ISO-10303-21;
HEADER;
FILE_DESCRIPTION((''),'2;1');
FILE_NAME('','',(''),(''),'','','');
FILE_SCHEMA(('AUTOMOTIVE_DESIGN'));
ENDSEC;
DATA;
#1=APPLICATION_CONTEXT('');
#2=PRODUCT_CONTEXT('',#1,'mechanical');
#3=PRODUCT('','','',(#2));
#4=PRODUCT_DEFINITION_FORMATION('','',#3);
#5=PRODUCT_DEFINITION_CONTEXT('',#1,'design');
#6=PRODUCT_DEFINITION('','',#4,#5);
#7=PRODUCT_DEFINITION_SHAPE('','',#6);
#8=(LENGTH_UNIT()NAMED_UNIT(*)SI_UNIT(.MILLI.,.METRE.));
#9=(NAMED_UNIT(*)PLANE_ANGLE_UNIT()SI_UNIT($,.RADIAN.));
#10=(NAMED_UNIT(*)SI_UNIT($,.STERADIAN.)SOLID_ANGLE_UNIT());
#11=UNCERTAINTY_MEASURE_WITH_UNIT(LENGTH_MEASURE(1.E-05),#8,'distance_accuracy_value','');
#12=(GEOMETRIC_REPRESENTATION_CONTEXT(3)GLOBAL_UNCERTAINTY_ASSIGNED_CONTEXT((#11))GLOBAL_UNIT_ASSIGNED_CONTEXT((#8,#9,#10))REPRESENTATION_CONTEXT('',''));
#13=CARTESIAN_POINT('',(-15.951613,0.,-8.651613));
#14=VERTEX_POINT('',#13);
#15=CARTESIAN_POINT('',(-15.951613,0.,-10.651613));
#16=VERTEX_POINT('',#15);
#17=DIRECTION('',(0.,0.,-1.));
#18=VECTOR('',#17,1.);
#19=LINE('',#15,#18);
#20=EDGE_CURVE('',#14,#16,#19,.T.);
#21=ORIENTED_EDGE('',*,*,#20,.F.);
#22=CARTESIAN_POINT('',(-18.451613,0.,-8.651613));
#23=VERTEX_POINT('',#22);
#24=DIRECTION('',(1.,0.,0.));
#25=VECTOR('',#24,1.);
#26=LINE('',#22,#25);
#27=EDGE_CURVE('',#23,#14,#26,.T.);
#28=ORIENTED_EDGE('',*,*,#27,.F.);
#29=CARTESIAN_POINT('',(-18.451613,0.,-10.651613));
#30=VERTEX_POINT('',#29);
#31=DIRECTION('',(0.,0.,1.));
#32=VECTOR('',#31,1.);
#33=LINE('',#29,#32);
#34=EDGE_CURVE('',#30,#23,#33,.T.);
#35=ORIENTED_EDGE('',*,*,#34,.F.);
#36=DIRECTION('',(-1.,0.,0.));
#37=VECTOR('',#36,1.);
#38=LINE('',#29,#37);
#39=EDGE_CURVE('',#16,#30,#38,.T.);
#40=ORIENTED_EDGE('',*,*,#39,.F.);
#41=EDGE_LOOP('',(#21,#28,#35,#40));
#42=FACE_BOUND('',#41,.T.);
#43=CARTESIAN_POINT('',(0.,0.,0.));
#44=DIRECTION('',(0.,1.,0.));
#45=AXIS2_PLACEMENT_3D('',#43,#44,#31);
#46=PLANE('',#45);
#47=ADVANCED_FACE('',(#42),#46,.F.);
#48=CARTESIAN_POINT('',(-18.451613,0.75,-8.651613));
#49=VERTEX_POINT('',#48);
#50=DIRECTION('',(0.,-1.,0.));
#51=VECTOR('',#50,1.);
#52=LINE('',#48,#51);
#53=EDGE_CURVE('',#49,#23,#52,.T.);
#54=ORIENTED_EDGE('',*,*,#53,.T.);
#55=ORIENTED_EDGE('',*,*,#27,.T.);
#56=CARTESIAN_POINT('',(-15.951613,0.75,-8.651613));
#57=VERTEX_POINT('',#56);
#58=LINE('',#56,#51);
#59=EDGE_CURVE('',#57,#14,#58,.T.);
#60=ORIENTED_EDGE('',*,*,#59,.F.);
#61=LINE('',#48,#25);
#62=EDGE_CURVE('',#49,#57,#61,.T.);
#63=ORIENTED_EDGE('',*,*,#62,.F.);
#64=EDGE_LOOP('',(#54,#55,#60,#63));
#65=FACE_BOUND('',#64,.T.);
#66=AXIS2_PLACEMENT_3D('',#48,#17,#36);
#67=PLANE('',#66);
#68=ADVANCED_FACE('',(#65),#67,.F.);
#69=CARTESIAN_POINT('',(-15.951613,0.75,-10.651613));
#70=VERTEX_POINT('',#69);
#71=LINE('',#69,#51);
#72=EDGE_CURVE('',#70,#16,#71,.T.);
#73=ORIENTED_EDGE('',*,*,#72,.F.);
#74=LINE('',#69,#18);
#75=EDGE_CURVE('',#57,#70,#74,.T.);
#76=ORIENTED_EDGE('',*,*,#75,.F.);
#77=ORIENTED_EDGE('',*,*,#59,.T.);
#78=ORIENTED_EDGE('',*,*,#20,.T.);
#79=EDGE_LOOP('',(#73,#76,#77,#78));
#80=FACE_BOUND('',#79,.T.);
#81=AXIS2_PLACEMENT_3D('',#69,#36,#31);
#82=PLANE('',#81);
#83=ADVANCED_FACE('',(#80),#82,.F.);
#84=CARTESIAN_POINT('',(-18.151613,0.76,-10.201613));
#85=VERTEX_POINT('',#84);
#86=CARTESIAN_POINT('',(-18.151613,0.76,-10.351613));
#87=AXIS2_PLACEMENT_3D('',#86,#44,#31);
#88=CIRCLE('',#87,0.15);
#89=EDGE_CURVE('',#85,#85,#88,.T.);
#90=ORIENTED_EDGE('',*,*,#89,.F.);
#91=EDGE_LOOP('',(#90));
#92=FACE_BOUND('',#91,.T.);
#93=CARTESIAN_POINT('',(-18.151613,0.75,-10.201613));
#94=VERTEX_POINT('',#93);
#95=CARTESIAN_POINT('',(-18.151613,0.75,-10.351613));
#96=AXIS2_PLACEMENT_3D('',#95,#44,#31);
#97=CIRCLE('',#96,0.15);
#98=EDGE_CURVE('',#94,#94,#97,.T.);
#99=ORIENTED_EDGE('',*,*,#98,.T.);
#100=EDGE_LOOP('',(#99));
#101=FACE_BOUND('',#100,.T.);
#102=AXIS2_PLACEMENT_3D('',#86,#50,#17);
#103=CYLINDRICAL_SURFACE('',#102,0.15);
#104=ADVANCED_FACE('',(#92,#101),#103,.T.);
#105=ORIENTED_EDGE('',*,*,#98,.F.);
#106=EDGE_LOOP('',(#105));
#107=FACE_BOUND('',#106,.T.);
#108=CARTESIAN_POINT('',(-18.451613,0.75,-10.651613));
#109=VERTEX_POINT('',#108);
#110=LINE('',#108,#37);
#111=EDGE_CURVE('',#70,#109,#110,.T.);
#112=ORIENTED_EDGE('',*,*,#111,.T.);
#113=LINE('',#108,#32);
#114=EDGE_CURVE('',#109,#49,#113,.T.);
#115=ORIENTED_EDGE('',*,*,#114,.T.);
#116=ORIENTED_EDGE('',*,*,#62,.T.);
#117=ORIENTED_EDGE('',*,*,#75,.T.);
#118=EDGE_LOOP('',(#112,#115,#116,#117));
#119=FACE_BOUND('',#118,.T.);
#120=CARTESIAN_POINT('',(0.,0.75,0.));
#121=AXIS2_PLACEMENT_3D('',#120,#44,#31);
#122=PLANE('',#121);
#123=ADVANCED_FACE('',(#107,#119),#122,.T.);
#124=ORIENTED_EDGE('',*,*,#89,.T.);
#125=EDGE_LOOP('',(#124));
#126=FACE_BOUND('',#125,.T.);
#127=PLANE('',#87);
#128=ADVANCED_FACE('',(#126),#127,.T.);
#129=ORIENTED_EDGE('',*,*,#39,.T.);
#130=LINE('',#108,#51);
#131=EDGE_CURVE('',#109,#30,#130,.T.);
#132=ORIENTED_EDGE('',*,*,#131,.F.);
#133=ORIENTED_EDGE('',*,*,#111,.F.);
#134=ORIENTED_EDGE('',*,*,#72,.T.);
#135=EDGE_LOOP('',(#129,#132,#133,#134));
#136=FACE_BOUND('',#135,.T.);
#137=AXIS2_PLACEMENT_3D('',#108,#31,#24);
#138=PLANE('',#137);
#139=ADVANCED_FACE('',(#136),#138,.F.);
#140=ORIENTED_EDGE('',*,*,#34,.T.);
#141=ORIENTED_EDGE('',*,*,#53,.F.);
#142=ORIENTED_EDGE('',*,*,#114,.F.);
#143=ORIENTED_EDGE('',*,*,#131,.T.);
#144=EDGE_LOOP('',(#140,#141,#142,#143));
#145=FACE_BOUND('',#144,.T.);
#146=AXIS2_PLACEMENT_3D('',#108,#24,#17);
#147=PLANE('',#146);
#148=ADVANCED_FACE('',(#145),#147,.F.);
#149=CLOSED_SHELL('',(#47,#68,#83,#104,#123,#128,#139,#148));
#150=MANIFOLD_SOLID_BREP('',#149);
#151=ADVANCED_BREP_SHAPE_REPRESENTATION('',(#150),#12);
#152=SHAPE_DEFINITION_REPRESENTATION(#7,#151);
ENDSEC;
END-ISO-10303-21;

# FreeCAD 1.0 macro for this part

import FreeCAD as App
import Part
import Sketcher

V = App.Vector


def add_polygon(sketch, points):
    """Adds a closed chain of lines whose ends are joined by coincident constraints."""
    first, n = sketch.GeometryCount, len(points)
    for a, b in zip(points, points[1:] + points[:1]):
        sketch.addGeometry(Part.LineSegment(App.Vector(*a, 0), App.Vector(*b, 0)), False)
    for i in range(n):
        sketch.addConstraint(Sketcher.Constraint("Coincident", first + i, 2, first + (i + 1) % n, 1))

doc = App.newDocument("Part")
body = doc.addObject("PartDesign::Body", "Body")

# Sketch on XZ plane
sketch1 = body.newObject("Sketcher::SketchObject", "Sketch")
sketch1.AttachmentSupport = (doc.getObject("XZ_Plane"), [""])
sketch1.MapMode = "FlatFace"
add_polygon(sketch1, [(-18.5, -10.7), (-18.5, -8.7), (-16, -8.7), (-16, -10.7)])  # lines 0-3
sketch1.addConstraint([
    Sketcher.Constraint("Vertical", 0),
    Sketcher.Constraint("Horizontal", 1),
    Sketcher.Constraint("Vertical", 2),
    Sketcher.Constraint("Horizontal", 3),
    Sketcher.Constraint("DistanceY", 0, 1, 0, 2, 2.0),
    Sketcher.Constraint("DistanceX", 1, 1, 1, 2, 2.5),
    Sketcher.Constraint("DistanceX", 0, 2, -1, 1, 18.451613),
    Sketcher.Constraint("DistanceY", 0, 2, -1, 1, 8.651613),
])
pad1 = body.newObject("PartDesign::Pad", "Pad")
pad1.Profile = sketch1
pad1.Length = 0.75
pad1.Reversed = True

# Sketch on XZ plane
sketch2 = body.newObject("Sketcher::SketchObject", "Sketch001")
sketch2.AttachmentSupport = (doc.getObject("XZ_Plane"), [""])
sketch2.MapMode = "FlatFace"
sketch2.AttachmentOffset = App.Placement(V(0, 0, -0.75), App.Rotation())
sketch2.addGeometry(Part.Circle(V(-18.15, -10.35, 0), V(0, 0, 1), 0.15), False)
sketch2.addConstraint([
    Sketcher.Constraint("Diameter", 0, 0.3),
    Sketcher.Constraint("DistanceX", 0, 3, -1, 1, 18.151613),
    Sketcher.Constraint("DistanceY", 0, 3, -1, 1, 10.351613),
])
pad2 = body.newObject("PartDesign::Pad", "Pad001")
pad2.Profile = sketch2
pad2.Length = 0.01
pad2.Reversed = True

doc.recompute()
